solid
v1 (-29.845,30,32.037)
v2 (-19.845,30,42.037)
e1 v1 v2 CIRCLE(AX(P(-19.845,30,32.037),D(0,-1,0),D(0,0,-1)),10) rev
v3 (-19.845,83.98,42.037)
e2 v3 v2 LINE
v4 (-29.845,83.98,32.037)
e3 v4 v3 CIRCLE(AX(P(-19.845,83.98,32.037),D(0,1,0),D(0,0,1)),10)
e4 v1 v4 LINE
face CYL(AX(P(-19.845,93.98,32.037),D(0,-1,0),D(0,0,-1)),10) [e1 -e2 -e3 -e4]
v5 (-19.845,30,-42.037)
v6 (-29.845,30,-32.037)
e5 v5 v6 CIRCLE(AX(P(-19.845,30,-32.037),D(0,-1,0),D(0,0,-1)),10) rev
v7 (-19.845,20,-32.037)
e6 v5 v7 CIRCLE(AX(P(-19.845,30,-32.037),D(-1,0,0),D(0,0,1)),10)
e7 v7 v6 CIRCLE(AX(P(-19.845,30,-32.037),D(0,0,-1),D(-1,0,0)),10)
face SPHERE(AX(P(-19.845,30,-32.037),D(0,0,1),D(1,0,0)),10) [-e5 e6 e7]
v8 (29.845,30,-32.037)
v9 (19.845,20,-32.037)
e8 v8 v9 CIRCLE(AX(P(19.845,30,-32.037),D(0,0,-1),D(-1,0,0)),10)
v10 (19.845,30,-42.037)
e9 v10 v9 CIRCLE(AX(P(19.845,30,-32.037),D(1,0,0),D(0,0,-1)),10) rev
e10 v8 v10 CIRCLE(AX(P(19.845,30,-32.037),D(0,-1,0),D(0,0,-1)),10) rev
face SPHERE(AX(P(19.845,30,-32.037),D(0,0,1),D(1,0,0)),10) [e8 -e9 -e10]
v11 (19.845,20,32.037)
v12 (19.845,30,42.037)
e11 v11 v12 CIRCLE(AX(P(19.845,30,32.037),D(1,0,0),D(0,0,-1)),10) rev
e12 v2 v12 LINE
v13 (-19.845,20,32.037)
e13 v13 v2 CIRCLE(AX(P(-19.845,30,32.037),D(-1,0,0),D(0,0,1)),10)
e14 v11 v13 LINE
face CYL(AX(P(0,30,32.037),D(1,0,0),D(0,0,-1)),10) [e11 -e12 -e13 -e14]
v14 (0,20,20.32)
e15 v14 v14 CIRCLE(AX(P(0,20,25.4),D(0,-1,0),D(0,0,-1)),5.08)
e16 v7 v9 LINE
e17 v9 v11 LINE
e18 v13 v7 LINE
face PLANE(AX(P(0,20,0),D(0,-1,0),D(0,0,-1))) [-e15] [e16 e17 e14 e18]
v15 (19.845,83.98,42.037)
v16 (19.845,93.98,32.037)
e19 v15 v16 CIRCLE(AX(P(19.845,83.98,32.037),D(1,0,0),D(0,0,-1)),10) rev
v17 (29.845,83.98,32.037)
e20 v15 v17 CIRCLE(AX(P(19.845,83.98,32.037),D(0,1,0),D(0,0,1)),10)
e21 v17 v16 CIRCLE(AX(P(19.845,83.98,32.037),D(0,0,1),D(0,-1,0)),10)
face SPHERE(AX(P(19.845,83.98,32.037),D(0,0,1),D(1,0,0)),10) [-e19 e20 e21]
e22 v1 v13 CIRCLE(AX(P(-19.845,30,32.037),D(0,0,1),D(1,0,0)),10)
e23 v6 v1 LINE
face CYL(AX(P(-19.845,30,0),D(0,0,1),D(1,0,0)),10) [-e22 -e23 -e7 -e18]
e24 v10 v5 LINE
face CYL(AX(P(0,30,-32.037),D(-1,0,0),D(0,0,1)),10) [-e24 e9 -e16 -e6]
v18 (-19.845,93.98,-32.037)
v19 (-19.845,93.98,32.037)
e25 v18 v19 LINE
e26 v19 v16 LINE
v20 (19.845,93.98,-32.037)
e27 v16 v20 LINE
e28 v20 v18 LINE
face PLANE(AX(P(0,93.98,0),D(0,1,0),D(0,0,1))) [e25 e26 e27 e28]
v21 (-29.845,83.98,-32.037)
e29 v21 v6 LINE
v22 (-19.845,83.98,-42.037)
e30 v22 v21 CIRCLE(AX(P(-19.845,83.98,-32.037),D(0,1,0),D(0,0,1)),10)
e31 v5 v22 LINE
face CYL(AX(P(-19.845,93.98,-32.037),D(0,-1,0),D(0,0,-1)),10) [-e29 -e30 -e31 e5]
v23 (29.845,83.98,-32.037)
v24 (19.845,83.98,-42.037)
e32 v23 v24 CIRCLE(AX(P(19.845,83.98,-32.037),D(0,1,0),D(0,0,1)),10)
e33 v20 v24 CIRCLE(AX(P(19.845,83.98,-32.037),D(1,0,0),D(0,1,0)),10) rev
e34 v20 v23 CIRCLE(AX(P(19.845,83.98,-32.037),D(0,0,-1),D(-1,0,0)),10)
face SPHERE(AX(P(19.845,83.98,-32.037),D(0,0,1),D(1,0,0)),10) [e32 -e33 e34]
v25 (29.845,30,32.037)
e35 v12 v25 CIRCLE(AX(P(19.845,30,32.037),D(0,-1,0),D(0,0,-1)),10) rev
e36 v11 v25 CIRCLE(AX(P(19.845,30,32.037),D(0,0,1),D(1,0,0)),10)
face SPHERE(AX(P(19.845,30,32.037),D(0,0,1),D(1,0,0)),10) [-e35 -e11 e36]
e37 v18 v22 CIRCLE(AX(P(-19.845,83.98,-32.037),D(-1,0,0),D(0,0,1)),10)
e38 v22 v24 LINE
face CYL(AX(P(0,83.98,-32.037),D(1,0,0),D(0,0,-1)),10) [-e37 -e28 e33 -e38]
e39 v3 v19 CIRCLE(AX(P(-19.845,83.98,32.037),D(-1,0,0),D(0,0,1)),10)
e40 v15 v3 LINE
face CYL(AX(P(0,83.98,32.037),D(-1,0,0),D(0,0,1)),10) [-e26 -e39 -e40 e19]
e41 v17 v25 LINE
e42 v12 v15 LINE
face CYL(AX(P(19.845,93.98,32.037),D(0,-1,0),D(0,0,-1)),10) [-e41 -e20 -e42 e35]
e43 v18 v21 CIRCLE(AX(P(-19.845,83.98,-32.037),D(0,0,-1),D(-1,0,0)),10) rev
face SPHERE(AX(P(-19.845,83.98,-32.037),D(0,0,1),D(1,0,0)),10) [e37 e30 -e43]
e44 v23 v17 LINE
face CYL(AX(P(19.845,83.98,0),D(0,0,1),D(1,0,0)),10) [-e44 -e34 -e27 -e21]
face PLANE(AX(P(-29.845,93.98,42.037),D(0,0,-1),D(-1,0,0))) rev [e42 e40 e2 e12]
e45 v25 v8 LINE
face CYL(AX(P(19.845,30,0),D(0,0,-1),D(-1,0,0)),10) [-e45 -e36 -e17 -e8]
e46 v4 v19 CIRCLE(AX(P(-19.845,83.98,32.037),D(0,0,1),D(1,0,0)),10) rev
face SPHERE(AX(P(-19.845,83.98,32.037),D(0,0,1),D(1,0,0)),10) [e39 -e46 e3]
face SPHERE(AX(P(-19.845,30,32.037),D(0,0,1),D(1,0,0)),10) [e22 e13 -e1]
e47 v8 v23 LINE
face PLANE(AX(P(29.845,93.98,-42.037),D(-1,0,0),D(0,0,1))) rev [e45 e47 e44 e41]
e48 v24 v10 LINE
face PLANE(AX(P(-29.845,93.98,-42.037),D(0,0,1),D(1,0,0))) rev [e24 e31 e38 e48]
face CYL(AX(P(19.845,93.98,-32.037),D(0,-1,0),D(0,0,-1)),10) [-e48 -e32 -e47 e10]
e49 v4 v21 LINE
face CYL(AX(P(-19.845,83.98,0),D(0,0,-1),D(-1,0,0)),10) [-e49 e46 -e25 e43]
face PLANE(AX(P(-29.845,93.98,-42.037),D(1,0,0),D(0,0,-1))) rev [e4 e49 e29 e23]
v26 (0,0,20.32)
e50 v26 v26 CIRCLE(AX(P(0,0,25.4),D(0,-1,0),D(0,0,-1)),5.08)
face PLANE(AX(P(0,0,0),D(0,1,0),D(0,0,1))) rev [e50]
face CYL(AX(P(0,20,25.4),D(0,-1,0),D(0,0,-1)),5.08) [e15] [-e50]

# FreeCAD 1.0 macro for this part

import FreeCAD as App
import Part
import Sketcher
from FreeCAD import Vector
Q = App.Units.Quantity


def edges_at(feature, points):
    """Names of the edges that pass closest to the given points."""
    edges = feature.Shape.Edges
    near = lambda p: min(range(len(edges)), key=lambda i: edges[i].distToShape(Part.Vertex(*p))[0])
    return sorted({f"Edge{near(p) + 1}" for p in points})

doc = App.newDocument("Part")
params = doc.addObject("Spreadsheet::Sheet", "Params")
for row, (alias, value) in enumerate([
    ("sketch1_width", "2.35 in"),
    ("sketch1_height", "3.31 in"),
    ("pad1_length", "3.7 in"),
    ("sketch2_diameter", "0.4 in"),
    ("sketch2_width", "2.35 in"),
    ("sketch2_height", "3.31 in"),
    ("pocket1_length", "20 mm"),
    ("fillet_radius", "10 mm"),
], start=1):
    params.set(f"A{row}", alias)
    params.set(f"B{row}", "=" + value)
    params.setAlias(f"B{row}", alias)

body = doc.addObject("PartDesign::Body", "Body")

# Sketch on XZ plane
sketch1 = body.newObject("Sketcher::SketchObject", "Sketch")
sketch1.AttachmentSupport = (doc.getObject("XZ_Plane"), [""])
sketch1.MapMode = "FlatFace"
sketch1.addGeometry([
    Part.LineSegment(Vector(-30, -42, 0), Vector(-30, 42, 0)),
    Part.LineSegment(Vector(-30, 42, 0), Vector(30, 42, 0)),
    Part.LineSegment(Vector(30, 42, 0), Vector(30, -42, 0)),
    Part.LineSegment(Vector(30, -42, 0), Vector(-30, -42, 0)),
], False)
sketch1.addConstraint([
    Sketcher.Constraint("Coincident", 0, 2, 1, 1),
    Sketcher.Constraint("Coincident", 1, 2, 2, 1),
    Sketcher.Constraint("Coincident", 2, 2, 3, 1),
    Sketcher.Constraint("Coincident", 3, 2, 0, 1),
    Sketcher.Constraint("Vertical", 0),
    Sketcher.Constraint("Horizontal", 1),
    Sketcher.Constraint("Vertical", 2),
    Sketcher.Constraint("Horizontal", 3),
    Sketcher.Constraint("Symmetric", 0, 2, 2, 2, -1, 1),
    Sketcher.Constraint("DistanceX", 1, 1, 1, 2, Q("2.35 in")),
    Sketcher.Constraint("DistanceY", 0, 1, 0, 2, Q("3.31 in")),
])
sketch1.setExpression("Constraints[9]", "Params.sketch1_width")
sketch1.setExpression("Constraints[10]", "Params.sketch1_height")
pad1 = body.newObject("PartDesign::Pad", "Pad")
pad1.Profile = sketch1
pad1.setExpression("Length", "Params.pad1_length")
pad1.Reversed = True

# Sketch on XZ plane
sketch2 = body.newObject("Sketcher::SketchObject", "Sketch001")
sketch2.AttachmentSupport = (doc.getObject("XZ_Plane"), [""])
sketch2.MapMode = "FlatFace"
sketch2.addGeometry([
    Part.LineSegment(Vector(-30, 42, 0), Vector(-30, -42, 0)),  # 0
    Part.LineSegment(Vector(-30, -42, 0), Vector(30, -42, 0)),  # 1
    Part.LineSegment(Vector(30, -42, 0), Vector(30, 42, 0)),  # 2
    Part.LineSegment(Vector(30, 42, 0), Vector(-30, 42, 0)),  # 3
    Part.Circle(Vector(0, 25, 0), Vector(0, 0, 1), 5),  # 4
], False)
sketch2.addConstraint([
    Sketcher.Constraint("Coincident", 0, 2, 1, 1),
    Sketcher.Constraint("Coincident", 1, 2, 2, 1),
    Sketcher.Constraint("Coincident", 2, 2, 3, 1),
    Sketcher.Constraint("Coincident", 3, 2, 0, 1),
    Sketcher.Constraint("Vertical", 0),
    Sketcher.Constraint("Horizontal", 1),
    Sketcher.Constraint("Vertical", 2),
    Sketcher.Constraint("Horizontal", 3),
    Sketcher.Constraint("Symmetric", 0, 2, 2, 2, -1, 1),
    Sketcher.Constraint("PointOnObject", 4, 3, -2),
    Sketcher.Constraint("Diameter", 4, Q("0.4 in")),
    Sketcher.Constraint("DistanceY", -1, 1, 4, 3, Q("1 in")),
    Sketcher.Constraint("DistanceX", 1, 1, 1, 2, Q("2.35 in")),
    Sketcher.Constraint("DistanceY", 0, 2, 0, 1, Q("3.31 in")),
])
sketch2.setExpression("Constraints[10]", "Params.sketch2_diameter")
sketch2.setExpression("Constraints[12]", "Params.sketch2_width")
sketch2.setExpression("Constraints[13]", "Params.sketch2_height")
pocket1 = body.newObject("PartDesign::Pocket", "Pocket")
pocket1.Profile = sketch2
pocket1.setExpression("Length", "Params.pocket1_length")
doc.recompute()

fillet = body.newObject("PartDesign::Fillet", "Fillet")
fillet.Base = (pocket1, edges_at(pocket1, [
    (-29.845, 93.98, 0),
    (0, 93.98, 42.037),
    (0, 20, -42.037),
    (-29.845, 20, 0),
    (0, 20, 42.037),
    (29.845, 20, 0),
    (29.845, 93.98, 0),
    (0, 93.98, -42.037),
    (29.845, 56.99, 42.037),
    (-29.845, 56.99, 42.037),
    (-29.845, 56.99, -42.037),
    (29.845, 56.99, -42.037),
]))
fillet.setExpression("Radius", "Params.fillet_radius")

doc.recompute()
